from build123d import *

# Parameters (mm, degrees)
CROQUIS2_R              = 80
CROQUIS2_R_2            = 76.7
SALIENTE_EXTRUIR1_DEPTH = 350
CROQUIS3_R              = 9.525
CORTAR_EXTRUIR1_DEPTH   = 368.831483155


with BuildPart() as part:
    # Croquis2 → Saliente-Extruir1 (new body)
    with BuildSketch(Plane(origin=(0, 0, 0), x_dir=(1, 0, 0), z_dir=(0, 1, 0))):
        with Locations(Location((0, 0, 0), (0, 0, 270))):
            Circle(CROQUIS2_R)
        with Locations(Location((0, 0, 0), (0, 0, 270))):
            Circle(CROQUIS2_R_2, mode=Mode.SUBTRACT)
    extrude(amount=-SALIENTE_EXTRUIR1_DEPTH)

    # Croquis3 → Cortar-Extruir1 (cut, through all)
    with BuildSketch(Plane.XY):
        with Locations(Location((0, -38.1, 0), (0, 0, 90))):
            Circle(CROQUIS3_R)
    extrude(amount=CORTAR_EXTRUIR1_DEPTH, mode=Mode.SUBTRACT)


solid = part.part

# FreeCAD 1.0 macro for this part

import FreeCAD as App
import Part
import Sketcher

V = App.Vector

doc = App.newDocument("Part")
body = doc.addObject("PartDesign::Body", "Body")

# Sketch on XZ plane
sketch1 = doc.addObject("Sketcher::SketchObject", "Sketch")
body.addObject(sketch1)
sketch1.AttachmentSupport = (doc.XZ_Plane, [""])
sketch1.MapMode = "FlatFace"
sketch1.addGeometry([
    Part.Circle(V(0, 0, 0), V(0, 0, 1), 80),
    Part.Circle(V(0, 0, 0), V(0, 0, 1), 77),
], False)
sketch1.addConstraint([
    Sketcher.Constraint("Coincident", 0, 3, -1, 1),
    Sketcher.Constraint("Coincident", 1, 3, -1, 1),
    Sketcher.Constraint("Diameter", 0, 160.0),
    Sketcher.Constraint("Diameter", 1, 153.4),
])
pad1 = doc.addObject("PartDesign::Pad", "Pad")
body.addObject(pad1)
pad1.Profile = sketch1
pad1.Length = 350

# Sketch on XY plane
sketch2 = doc.addObject("Sketcher::SketchObject", "Sketch001")
body.addObject(sketch2)
sketch2.AttachmentSupport = (doc.XY_Plane, [""])
sketch2.MapMode = "FlatFace"
sketch2.addGeometry(Part.Circle(V(0, -38, 0), V(0, 0, 1), 10), False)
sketch2.addConstraint([
    Sketcher.Constraint("PointOnObject", 0, 3, -2),
    Sketcher.Constraint("Diameter", 0, 19.05),
    Sketcher.Constraint("DistanceY", 0, 3, -1, 1, 38.1),
])
pocket1 = doc.addObject("PartDesign::Pocket", "Pocket")
body.addObject(pocket1)
pocket1.Profile = sketch2
pocket1.Type = "ThroughAll"
pocket1.Reversed = True

doc.recompute()
